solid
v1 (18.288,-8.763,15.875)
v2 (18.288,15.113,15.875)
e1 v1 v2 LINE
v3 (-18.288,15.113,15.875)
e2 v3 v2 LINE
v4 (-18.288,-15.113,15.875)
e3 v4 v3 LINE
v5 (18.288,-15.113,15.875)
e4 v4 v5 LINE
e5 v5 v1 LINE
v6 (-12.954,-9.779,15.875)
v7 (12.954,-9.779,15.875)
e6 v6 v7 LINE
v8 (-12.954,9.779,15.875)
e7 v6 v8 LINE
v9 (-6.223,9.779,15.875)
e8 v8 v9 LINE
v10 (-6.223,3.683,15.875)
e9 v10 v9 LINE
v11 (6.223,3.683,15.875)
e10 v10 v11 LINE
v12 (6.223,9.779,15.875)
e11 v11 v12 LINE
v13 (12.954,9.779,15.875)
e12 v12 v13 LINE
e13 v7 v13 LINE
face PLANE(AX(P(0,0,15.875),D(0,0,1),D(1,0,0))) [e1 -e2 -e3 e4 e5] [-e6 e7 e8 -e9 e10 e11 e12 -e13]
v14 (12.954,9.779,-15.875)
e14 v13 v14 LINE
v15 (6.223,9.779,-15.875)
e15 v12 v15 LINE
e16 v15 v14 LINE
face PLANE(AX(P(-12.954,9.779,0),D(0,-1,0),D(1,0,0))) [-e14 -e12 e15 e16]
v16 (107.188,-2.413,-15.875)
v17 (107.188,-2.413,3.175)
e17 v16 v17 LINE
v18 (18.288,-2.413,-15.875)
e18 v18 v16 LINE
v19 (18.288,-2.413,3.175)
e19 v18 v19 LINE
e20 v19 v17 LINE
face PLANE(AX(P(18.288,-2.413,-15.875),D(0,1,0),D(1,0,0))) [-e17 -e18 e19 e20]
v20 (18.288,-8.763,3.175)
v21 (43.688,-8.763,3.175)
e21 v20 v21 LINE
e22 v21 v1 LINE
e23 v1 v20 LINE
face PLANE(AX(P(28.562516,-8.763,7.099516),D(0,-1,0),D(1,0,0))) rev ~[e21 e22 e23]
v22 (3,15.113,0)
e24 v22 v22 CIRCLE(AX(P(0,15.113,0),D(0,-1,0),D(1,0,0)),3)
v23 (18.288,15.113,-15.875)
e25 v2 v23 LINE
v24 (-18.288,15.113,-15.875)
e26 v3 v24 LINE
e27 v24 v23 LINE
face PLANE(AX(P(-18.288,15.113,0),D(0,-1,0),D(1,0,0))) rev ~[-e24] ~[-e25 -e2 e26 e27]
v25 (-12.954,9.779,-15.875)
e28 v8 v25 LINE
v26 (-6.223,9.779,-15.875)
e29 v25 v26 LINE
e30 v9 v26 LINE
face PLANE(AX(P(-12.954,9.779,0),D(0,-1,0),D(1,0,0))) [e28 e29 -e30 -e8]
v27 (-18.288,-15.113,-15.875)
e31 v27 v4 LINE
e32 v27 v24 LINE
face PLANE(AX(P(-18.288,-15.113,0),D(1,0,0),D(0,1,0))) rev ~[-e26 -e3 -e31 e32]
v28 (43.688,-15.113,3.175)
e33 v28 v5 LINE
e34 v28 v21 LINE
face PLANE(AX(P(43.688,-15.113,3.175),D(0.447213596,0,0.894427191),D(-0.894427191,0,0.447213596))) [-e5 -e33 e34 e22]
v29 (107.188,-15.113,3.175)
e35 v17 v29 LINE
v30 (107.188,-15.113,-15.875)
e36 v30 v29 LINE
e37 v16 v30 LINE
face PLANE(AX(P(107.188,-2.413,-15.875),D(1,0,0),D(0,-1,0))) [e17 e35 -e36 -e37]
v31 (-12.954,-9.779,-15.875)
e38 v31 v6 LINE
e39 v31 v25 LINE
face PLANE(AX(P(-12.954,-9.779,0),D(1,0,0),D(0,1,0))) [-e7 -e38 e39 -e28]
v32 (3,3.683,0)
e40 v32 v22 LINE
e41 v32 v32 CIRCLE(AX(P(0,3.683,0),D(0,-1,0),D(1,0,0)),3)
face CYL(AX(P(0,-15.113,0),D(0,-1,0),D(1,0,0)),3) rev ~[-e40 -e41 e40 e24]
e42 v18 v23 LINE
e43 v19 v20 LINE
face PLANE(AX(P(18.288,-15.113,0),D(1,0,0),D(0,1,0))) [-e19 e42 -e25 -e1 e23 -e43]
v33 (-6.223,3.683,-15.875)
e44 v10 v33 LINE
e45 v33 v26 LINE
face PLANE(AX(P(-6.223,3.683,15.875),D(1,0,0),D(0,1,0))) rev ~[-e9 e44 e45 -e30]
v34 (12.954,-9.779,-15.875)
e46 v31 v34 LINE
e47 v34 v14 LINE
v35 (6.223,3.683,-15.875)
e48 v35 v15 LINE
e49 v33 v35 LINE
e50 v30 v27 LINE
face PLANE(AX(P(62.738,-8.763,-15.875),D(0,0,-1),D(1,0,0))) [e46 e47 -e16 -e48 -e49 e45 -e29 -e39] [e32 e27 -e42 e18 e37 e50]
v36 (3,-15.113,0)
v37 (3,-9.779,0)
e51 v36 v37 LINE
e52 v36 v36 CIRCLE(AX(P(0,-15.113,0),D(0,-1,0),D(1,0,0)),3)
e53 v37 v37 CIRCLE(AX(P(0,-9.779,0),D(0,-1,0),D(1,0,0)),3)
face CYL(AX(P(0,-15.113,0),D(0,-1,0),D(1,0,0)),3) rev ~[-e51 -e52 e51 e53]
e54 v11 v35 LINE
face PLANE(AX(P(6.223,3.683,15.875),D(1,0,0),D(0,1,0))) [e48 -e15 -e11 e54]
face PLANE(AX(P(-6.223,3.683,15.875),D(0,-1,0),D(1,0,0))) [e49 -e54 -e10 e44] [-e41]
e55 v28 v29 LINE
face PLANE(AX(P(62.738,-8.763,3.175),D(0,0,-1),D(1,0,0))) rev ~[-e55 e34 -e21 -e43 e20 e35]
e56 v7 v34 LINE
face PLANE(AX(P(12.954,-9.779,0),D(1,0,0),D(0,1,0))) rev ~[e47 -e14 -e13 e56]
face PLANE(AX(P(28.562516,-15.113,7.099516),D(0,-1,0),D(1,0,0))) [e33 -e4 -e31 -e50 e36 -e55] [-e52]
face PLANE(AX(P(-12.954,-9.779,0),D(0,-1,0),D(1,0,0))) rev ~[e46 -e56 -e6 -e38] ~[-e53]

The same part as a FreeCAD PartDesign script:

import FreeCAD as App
import Part
import Sketcher
Q = App.Units.Quantity

doc = App.newDocument("Part")
body = doc.addObject("PartDesign::Body", "Body")

# Sketch on XY plane
sketch1 = body.newObject("Sketcher::SketchObject", "Sketch")
sketch1.AttachmentSupport = (doc.getObject("XY_Plane"), [""])
sketch1.MapMode = "FlatFace"
sketch1.addGeometry(Part.LineSegment(App.Vector(-18, 15, 0), App.Vector(-18, -15, 0)), False)
sketch1.addGeometry(Part.LineSegment(App.Vector(-18, -15, 0), App.Vector(18, -15, 0)), False)
sketch1.addGeometry(Part.LineSegment(App.Vector(18, -15, 0), App.Vector(18, 15, 0)), False)
sketch1.addGeometry(Part.LineSegment(App.Vector(18, 15, 0), App.Vector(-18, 15, 0)), False)
sketch1.addGeometry(Part.LineSegment(App.Vector(13, -10, 0), App.Vector(-13, -10, 0)), False)
sketch1.addGeometry(Part.LineSegment(App.Vector(-13, -10, 0), App.Vector(-13, 10, 0)), False)
sketch1.addGeometry(Part.LineSegment(App.Vector(-13, 10, 0), App.Vector(13, 10, 0)), False)
sketch1.addGeometry(Part.LineSegment(App.Vector(13, 10, 0), App.Vector(13, -10, 0)), False)
sketch1.addConstraint(Sketcher.Constraint("Coincident", 0, 2, 1, 1))
sketch1.addConstraint(Sketcher.Constraint("Coincident", 1, 2, 2, 1))
sketch1.addConstraint(Sketcher.Constraint("Coincident", 2, 2, 3, 1))
sketch1.addConstraint(Sketcher.Constraint("Coincident", 3, 2, 0, 1))
sketch1.addConstraint(Sketcher.Constraint("Coincident", 4, 2, 5, 1))
sketch1.addConstraint(Sketcher.Constraint("Coincident", 5, 2, 6, 1))
sketch1.addConstraint(Sketcher.Constraint("Coincident", 6, 2, 7, 1))
sketch1.addConstraint(Sketcher.Constraint("Coincident", 7, 2, 4, 1))
sketch1.addConstraint(Sketcher.Constraint("Vertical", 0))
sketch1.addConstraint(Sketcher.Constraint("Horizontal", 1))
sketch1.addConstraint(Sketcher.Constraint("Vertical", 2))
sketch1.addConstraint(Sketcher.Constraint("Horizontal", 3))
sketch1.addConstraint(Sketcher.Constraint("Horizontal", 4))
sketch1.addConstraint(Sketcher.Constraint("Vertical", 5))
sketch1.addConstraint(Sketcher.Constraint("Horizontal", 6))
sketch1.addConstraint(Sketcher.Constraint("Vertical", 7))
sketch1.addConstraint(Sketcher.Constraint("Symmetric", 0, 2, 2, 2, -1, 1))
sketch1.addConstraint(Sketcher.Constraint("Symmetric", 4, 2, 6, 2, -1, 1))
sketch1.addConstraint(Sketcher.Constraint("DistanceX", 1, 1, 1, 2, Q("1.44 in")))
sketch1.addConstraint(Sketcher.Constraint("DistanceX", 4, 2, 4, 1, Q("1.02 in")))
sketch1.addConstraint(Sketcher.Constraint("DistanceY", 0, 2, 0, 1, Q("1.19 in")))
sketch1.addConstraint(Sketcher.Constraint("DistanceY", 5, 1, 5, 2, Q("0.77 in")))
pad1 = body.newObject("PartDesign::Pad", "Pad")
pad1.Profile = sketch1
pad1.Length = Q("1.25 in")
pad1.Midplane = True

# Sketch on XY plane
sketch2 = body.newObject("Sketcher::SketchObject", "Sketch001")
sketch2.AttachmentSupport = (doc.getObject("XY_Plane"), [""])
sketch2.MapMode = "FlatFace"
sketch2.AttachmentOffset = App.Placement(App.Vector(0, 0, 0.625 * 25.4), App.Rotation())
sketch2.addGeometry(Part.LineSegment(App.Vector(-6, 10, 0), App.Vector(-6, 4, 0)), False)
sketch2.addGeometry(Part.LineSegment(App.Vector(-6, 4, 0), App.Vector(6, 4, 0)), False)
sketch2.addGeometry(Part.LineSegment(App.Vector(6, 4, 0), App.Vector(6, 10, 0)), False)
sketch2.addGeometry(Part.LineSegment(App.Vector(6, 10, 0), App.Vector(-6, 10, 0)), False)
sketch2.addConstraint(Sketcher.Constraint("Coincident", 0, 2, 1, 1))
sketch2.addConstraint(Sketcher.Constraint("Coincident", 1, 2, 2, 1))
sketch2.addConstraint(Sketcher.Constraint("Coincident", 2, 2, 3, 1))
sketch2.addConstraint(Sketcher.Constraint("Coincident", 3, 2, 0, 1))
sketch2.addConstraint(Sketcher.Constraint("Vertical", 0))
sketch2.addConstraint(Sketcher.Constraint("Horizontal", 1))
sketch2.addConstraint(Sketcher.Constraint("Vertical", 2))
sketch2.addConstraint(Sketcher.Constraint("Horizontal", 3))
sketch2.addConstraint(Sketcher.Constraint("DistanceX", 1, 1, 1, 2, Q("0.49 in")))
sketch2.addConstraint(Sketcher.Constraint("DistanceY", 0, 2, 0, 1, Q("0.24 in")))
sketch2.addConstraint(Sketcher.Constraint("DistanceX", 0, 2, -1, 1, Q("0.245 in")))
sketch2.addConstraint(Sketcher.Constraint("DistanceY", -1, 1, 0, 2, Q("0.145 in")))
pad2 = body.newObject("PartDesign::Pad", "Pad001")
pad2.Profile = sketch2
pad2.Length = Q("1.25 in")
pad2.Reversed = True

# Sketch on XY plane
sketch3 = body.newObject("Sketcher::SketchObject", "Sketch002")
sketch3.AttachmentSupport = (doc.getObject("XY_Plane"), [""])
sketch3.MapMode = "FlatFace"
sketch3.AttachmentOffset = App.Placement(App.Vector(0, 0, -0.625 * 25.4), App.Rotation())
sketch3.addGeometry(Part.LineSegment(App.Vector(18, -15, 0), App.Vector(18, -2, 0)), False)
sketch3.addGeometry(Part.LineSegment(App.Vector(18, -2, 0), App.Vector(107, -2, 0)), False)
sketch3.addGeometry(Part.LineSegment(App.Vector(107, -2, 0), App.Vector(107, -15, 0)), False)
sketch3.addGeometry(Part.LineSegment(App.Vector(107, -15, 0), App.Vector(18, -15, 0)), False)
sketch3.addConstraint(Sketcher.Constraint("Coincident", 0, 2, 1, 1))
sketch3.addConstraint(Sketcher.Constraint("Coincident", 1, 2, 2, 1))
sketch3.addConstraint(Sketcher.Constraint("Coincident", 2, 2, 3, 1))
sketch3.addConstraint(Sketcher.Constraint("Coincident", 3, 2, 0, 1))
sketch3.addConstraint(Sketcher.Constraint("Vertical", 0))
sketch3.addConstraint(Sketcher.Constraint("Horizontal", 1))
sketch3.addConstraint(Sketcher.Constraint("Vertical", 2))
sketch3.addConstraint(Sketcher.Constraint("Horizontal", 3))
sketch3.addConstraint(Sketcher.Constraint("DistanceX", 1, 1, 1, 2, Q("3.5 in")))
sketch3.addConstraint(Sketcher.Constraint("DistanceY", 0, 1, 0, 2, Q("0.5 in")))
sketch3.addConstraint(Sketcher.Constraint("DistanceX", -1, 1, 0, 2, Q("0.72 in")))
sketch3.addConstraint(Sketcher.Constraint("DistanceY", 0, 2, -1, 1, Q("0.095 in")))
pad3 = body.newObject("PartDesign::Pad", "Pad002")
pad3.Profile = sketch3
pad3.Length = Q("0.75 in")

# Sketch on XZ plane
sketch4 = body.newObject("Sketcher::SketchObject", "Sketch003")
sketch4.AttachmentSupport = (doc.getObject("XZ_Plane"), [""])
sketch4.MapMode = "FlatFace"
sketch4.AttachmentOffset = App.Placement(App.Vector(0, 0, 0.595 * 25.4), App.Rotation())
sketch4.addGeometry(Part.LineSegment(App.Vector(44, 3, 0), App.Vector(18, 16, 0)), False)
sketch4.addGeometry(Part.LineSegment(App.Vector(18, 16, 0), App.Vector(18, 3, 0)), False)
sketch4.addGeometry(Part.LineSegment(App.Vector(18, 3, 0), App.Vector(44, 3, 0)), False)
sketch4.addConstraint(Sketcher.Constraint("Coincident", 0, 2, 1, 1))
sketch4.addConstraint(Sketcher.Constraint("Coincident", 1, 2, 2, 1))
sketch4.addConstraint(Sketcher.Constraint("Coincident", 2, 2, 0, 1))
sketch4.addConstraint(Sketcher.Constraint("Vertical", 1))
sketch4.addConstraint(Sketcher.Constraint("Horizontal", 2))
sketch4.addConstraint(Sketcher.Constraint("DistanceX", 2, 1, 2, 2, Q("1 in")))
sketch4.addConstraint(Sketcher.Constraint("DistanceY", 1, 2, 1, 1, Q("0.5 in")))
sketch4.addConstraint(Sketcher.Constraint("DistanceX", -1, 1, 0, 2, Q("0.72 in")))
sketch4.addConstraint(Sketcher.Constraint("DistanceY", -1, 1, 0, 2, Q("0.625 in")))
pad4 = body.newObject("PartDesign::Pad", "Pad003")
pad4.Profile = sketch4
pad4.Length = Q("0.25 in")
pad4.Reversed = True

# Sketch on XZ plane
sketch5 = body.newObject("Sketcher::SketchObject", "Sketch004")
sketch5.AttachmentSupport = (doc.getObject("XZ_Plane"), [""])
sketch5.MapMode = "FlatFace"
sketch5.AttachmentOffset = App.Placement(App.Vector(0, 0, 0.595 * 25.4), App.Rotation())
sketch5.addGeometry(Part.Circle(App.Vector(0, 0, 0), App.Vector(0, 0, 1), 3), False)
sketch5.addConstraint(Sketcher.Constraint("Coincident", 0, 3, -1, 1))
sketch5.addConstraint(Sketcher.Constraint("Diameter", 0, 6.0))
pocket1 = body.newObject("PartDesign::Pocket", "Pocket")
pocket1.Profile = sketch5
pocket1.Type = "ThroughAll"

doc.recompute()
